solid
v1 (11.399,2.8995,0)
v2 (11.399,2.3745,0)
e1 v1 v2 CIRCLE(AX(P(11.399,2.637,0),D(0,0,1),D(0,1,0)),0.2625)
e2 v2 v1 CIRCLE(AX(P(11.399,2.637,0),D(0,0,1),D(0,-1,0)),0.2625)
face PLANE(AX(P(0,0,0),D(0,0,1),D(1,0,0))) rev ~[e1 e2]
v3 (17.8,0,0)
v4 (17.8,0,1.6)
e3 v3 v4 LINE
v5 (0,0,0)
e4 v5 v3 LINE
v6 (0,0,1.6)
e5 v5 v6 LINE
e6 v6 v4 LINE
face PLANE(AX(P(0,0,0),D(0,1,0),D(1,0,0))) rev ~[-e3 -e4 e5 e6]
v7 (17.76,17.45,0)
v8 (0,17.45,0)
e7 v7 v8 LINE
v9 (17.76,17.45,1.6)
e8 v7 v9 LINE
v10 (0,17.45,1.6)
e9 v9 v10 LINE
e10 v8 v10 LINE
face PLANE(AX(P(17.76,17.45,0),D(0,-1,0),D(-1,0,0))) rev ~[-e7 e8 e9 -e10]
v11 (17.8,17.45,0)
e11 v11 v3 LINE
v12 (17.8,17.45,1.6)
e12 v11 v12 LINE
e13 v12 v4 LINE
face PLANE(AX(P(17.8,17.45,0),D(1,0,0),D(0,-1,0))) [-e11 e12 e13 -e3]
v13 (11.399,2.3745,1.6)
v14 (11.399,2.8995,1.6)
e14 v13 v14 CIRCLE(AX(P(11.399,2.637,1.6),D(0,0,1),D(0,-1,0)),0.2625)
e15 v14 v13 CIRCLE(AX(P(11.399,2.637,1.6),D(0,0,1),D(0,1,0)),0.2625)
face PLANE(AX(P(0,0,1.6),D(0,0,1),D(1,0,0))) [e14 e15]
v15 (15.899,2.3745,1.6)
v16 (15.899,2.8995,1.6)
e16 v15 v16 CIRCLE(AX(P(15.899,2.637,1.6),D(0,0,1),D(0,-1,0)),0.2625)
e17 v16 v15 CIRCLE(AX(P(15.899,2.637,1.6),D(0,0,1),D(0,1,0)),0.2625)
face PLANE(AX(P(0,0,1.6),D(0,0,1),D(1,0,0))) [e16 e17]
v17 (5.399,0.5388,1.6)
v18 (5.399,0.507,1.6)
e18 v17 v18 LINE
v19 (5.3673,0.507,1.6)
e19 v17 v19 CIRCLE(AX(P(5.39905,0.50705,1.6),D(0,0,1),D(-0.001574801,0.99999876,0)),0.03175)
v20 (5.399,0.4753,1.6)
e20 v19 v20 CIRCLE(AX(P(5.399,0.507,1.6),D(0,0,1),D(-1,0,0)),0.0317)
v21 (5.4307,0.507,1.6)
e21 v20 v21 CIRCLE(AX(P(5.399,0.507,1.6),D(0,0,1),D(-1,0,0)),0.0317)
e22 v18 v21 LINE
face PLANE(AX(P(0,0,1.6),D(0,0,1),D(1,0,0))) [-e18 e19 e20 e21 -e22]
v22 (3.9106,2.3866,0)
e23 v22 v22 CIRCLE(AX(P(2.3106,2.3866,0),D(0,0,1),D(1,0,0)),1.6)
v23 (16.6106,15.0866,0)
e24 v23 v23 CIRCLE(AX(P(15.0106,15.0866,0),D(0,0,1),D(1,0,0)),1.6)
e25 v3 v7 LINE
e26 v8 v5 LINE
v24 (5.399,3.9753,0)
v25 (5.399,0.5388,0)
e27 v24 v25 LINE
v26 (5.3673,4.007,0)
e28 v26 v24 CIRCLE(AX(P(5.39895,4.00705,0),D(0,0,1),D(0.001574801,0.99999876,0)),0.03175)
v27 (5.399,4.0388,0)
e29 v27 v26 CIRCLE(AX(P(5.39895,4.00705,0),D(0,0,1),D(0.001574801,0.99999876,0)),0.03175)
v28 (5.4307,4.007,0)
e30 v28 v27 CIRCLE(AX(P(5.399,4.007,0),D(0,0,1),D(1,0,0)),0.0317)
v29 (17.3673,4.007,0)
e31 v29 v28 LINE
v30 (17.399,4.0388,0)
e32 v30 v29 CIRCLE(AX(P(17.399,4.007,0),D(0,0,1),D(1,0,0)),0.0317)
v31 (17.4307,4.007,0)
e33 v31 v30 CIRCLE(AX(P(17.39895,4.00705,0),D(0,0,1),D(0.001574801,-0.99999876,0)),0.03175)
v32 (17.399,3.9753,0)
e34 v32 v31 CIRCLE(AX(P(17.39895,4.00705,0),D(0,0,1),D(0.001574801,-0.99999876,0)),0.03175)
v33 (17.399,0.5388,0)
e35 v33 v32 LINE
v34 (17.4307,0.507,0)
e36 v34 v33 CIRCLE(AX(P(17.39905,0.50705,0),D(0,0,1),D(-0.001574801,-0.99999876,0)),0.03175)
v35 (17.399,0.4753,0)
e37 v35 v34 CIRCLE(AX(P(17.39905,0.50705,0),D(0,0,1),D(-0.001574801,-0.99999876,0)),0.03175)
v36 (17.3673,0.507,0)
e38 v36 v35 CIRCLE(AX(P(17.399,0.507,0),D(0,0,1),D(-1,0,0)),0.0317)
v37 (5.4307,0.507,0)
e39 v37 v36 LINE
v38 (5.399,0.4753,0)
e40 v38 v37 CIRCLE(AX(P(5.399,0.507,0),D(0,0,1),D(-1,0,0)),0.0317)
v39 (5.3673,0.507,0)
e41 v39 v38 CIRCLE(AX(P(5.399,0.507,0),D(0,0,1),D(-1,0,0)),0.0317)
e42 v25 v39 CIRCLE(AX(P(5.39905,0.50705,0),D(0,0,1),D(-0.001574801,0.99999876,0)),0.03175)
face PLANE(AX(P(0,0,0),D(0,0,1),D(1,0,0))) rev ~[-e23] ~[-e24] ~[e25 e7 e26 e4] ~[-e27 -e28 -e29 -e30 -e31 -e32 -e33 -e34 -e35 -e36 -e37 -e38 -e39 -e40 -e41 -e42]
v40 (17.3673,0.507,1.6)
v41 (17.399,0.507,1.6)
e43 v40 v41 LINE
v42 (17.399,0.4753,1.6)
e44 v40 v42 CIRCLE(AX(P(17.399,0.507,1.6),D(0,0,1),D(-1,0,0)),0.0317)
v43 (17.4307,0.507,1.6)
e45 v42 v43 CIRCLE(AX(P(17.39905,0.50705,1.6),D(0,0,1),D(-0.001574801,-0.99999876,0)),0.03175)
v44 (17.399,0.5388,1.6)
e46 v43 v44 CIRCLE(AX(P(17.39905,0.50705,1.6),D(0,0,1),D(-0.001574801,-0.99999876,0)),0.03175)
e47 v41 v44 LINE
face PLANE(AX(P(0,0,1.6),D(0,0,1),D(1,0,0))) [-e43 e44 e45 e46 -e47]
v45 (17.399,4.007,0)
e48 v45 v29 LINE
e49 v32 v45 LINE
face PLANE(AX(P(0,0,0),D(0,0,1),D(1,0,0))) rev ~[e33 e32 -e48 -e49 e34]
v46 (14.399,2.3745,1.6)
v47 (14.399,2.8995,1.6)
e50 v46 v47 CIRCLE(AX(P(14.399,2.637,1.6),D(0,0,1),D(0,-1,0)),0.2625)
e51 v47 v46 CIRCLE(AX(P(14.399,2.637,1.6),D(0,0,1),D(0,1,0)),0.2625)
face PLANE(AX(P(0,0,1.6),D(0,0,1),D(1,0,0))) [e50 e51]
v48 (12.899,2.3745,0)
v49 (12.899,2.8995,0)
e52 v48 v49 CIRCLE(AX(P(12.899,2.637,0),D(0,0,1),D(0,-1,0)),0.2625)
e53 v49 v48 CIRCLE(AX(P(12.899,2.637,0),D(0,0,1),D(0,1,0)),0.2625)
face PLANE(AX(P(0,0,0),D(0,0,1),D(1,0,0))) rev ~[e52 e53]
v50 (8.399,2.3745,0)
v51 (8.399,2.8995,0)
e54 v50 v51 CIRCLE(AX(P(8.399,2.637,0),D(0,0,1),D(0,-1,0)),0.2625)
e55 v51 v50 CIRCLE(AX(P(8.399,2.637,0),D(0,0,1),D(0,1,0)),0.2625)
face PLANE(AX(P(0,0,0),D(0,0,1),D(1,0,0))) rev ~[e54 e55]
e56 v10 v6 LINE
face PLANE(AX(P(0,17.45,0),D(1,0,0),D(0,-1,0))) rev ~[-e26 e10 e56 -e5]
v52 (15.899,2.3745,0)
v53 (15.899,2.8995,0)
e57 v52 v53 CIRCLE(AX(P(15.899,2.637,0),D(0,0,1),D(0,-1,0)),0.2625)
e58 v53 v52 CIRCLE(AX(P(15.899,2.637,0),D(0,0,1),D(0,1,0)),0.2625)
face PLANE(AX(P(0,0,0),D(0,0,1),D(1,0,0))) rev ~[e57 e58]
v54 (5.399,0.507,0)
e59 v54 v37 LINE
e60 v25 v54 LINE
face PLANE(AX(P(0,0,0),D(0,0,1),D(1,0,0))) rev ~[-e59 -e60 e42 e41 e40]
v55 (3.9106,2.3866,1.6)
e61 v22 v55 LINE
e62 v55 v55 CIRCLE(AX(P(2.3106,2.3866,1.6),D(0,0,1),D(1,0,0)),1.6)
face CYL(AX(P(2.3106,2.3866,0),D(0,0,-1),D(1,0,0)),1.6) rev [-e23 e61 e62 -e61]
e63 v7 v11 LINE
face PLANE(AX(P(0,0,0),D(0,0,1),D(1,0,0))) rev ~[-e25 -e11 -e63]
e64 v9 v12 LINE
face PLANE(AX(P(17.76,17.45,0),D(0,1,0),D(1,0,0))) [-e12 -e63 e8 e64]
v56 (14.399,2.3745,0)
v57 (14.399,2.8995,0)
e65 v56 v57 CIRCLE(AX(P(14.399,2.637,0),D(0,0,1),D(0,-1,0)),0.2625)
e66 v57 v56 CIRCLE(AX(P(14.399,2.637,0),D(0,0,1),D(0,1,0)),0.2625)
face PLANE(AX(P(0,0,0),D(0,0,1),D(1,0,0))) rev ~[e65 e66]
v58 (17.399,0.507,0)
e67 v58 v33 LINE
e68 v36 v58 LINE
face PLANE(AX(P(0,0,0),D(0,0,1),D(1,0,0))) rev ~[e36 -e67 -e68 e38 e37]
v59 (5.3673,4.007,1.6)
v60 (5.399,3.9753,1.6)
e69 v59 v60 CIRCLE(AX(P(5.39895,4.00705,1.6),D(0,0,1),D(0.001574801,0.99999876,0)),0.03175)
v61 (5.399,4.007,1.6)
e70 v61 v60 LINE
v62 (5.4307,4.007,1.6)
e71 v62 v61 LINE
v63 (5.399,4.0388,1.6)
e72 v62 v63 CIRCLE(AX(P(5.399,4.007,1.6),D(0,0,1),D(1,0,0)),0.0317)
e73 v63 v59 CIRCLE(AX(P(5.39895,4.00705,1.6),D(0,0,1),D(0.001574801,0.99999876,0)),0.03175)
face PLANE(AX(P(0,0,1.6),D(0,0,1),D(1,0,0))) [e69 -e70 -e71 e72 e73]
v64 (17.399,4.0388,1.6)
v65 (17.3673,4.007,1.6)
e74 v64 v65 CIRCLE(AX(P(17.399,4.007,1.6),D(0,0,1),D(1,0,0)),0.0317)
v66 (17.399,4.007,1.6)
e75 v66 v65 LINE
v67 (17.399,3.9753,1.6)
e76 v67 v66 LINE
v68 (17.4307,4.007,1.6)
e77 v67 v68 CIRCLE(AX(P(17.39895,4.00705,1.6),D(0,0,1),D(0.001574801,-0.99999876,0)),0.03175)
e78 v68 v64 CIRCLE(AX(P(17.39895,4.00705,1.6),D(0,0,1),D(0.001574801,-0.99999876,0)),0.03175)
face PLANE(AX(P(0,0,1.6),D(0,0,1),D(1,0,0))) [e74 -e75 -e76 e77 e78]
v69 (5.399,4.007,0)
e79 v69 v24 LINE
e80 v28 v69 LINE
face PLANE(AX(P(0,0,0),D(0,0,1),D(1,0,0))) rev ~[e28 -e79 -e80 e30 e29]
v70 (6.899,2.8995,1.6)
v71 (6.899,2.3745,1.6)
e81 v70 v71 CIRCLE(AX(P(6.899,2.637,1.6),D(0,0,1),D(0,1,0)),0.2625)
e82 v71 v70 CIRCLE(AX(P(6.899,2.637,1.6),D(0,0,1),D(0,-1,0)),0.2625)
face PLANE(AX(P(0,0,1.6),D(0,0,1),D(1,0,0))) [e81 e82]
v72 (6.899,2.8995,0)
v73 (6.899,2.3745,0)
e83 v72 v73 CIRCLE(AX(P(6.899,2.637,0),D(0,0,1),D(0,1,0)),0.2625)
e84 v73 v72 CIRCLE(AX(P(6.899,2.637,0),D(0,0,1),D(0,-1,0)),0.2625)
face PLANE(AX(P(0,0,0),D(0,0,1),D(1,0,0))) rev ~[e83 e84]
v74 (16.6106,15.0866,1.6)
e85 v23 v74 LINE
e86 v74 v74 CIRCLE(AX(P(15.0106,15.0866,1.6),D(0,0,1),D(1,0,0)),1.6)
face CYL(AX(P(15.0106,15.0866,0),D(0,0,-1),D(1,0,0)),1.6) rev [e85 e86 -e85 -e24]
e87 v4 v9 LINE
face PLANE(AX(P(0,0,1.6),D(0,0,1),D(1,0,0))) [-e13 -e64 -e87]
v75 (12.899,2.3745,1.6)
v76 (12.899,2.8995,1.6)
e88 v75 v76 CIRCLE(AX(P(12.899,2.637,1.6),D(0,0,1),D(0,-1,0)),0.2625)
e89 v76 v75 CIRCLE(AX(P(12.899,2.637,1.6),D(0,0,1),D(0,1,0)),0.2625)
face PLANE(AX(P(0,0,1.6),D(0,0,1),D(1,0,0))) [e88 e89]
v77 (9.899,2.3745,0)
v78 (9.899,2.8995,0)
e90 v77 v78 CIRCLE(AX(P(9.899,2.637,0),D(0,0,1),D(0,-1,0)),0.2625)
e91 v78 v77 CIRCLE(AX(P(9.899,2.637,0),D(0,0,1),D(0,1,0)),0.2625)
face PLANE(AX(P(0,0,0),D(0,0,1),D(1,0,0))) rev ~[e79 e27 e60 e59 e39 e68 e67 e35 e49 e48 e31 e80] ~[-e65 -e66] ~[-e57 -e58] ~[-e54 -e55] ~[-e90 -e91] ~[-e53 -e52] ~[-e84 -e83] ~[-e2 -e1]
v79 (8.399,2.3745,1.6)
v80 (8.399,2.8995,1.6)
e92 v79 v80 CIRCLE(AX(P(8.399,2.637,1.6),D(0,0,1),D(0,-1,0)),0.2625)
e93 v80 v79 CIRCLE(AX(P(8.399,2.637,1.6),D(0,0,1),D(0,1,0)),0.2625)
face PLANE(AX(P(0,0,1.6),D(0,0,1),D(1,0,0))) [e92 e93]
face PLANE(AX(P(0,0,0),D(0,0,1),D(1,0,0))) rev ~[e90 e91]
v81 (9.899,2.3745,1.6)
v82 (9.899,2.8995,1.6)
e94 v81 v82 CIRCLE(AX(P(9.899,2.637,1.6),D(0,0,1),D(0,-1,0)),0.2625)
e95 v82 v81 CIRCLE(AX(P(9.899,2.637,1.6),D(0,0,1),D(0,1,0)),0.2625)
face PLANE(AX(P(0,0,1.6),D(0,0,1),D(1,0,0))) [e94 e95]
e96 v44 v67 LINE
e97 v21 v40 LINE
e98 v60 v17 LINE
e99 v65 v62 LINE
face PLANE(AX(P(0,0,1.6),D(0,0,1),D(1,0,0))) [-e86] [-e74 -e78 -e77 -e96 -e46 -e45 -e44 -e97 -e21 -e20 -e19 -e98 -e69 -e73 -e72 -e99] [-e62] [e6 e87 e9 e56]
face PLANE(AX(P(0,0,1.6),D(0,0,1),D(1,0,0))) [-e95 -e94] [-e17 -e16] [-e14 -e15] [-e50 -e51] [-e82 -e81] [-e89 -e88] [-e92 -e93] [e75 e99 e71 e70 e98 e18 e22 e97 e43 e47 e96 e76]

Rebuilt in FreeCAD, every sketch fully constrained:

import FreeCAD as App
import Part
import Sketcher
from FreeCAD import Vector
Q = App.Units.Quantity


def add_polygon(sketch, points):
    """Adds a closed chain of lines whose ends are joined by coincident constraints."""
    first, n = sketch.GeometryCount, len(points)
    for a, b in zip(points, points[1:] + points[:1]):
        sketch.addGeometry(Part.LineSegment(App.Vector(*a, 0), App.Vector(*b, 0)), False)
    for i in range(n):
        sketch.addConstraint(Sketcher.Constraint("Coincident", first + i, 2, first + (i + 1) % n, 1))

doc = App.newDocument("Part")
params = doc.addObject("Spreadsheet::Sheet", "Params")
for row, (alias, value) in enumerate([
    ("sketch1_diameter", "3.2 mm"),
    ("sketch1_width", "17.8 mm"),
    ("sketch1_height", "17.45 mm"),
    ("pad1_length", "1.6 mm"),
], start=1):
    params.set(f"A{row}", alias)
    params.set(f"B{row}", "=" + value)
    params.setAlias(f"B{row}", alias)

body = doc.addObject("PartDesign::Body", "Body")

# Sketch on XY plane
sketch1 = body.newObject("Sketcher::SketchObject", "Sketch")
sketch1.AttachmentSupport = (doc.getObject("XY_Plane"), [""])
sketch1.MapMode = "FlatFace"
add_polygon(sketch1, [(0, 17.4), (0, 0), (17.8, 0), (17.8, 17.4)])  # lines 0-3
sketch1.addGeometry(Part.Circle(Vector(2.3, 2.4, 0), Vector(0, 0, 1), 1.6), False)  # 4
sketch1.addGeometry(Part.Circle(Vector(15, 15.1, 0), Vector(0, 0, 1), 1.6), False)  # 5
sketch1.addConstraint(Sketcher.Constraint("Vertical", 0))
sketch1.addConstraint(Sketcher.Constraint("Horizontal", 1))
sketch1.addConstraint(Sketcher.Constraint("Vertical", 2))
sketch1.addConstraint(Sketcher.Constraint("Horizontal", 3))
sketch1.addConstraint(Sketcher.Constraint("Coincident", 0, 2, -1, 1))
sketch1.addConstraint(Sketcher.Constraint("Equal", 4, 5))
sketch1.addConstraint(Sketcher.Constraint("Diameter", 4, Q("3.2 mm")))
sketch1.addConstraint(Sketcher.Constraint("DistanceX", 4, 3, 5, 3, Q("12.7 mm")))
sketch1.addConstraint(Sketcher.Constraint("DistanceY", 4, 3, 5, 3, Q("12.7 mm")))
sketch1.addConstraint(Sketcher.Constraint("DistanceX", 1, 1, 1, 2, Q("17.8 mm")))
sketch1.addConstraint(Sketcher.Constraint("DistanceY", 0, 2, 0, 1, Q("17.45 mm")))
sketch1.addConstraint(Sketcher.Constraint("DistanceX", -1, 1, 4, 3, Q("2.3106 mm")))
sketch1.addConstraint(Sketcher.Constraint("DistanceY", -1, 1, 4, 3, Q("2.3866 mm")))
sketch1.setExpression("Constraints[10]", "Params.sketch1_diameter")
sketch1.setExpression("Constraints[13]", "Params.sketch1_width")
sketch1.setExpression("Constraints[14]", "Params.sketch1_height")
pad1 = body.newObject("PartDesign::Pad", "Pad")
pad1.Profile = sketch1
pad1.setExpression("Length", "Params.pad1_length")

doc.recompute()
